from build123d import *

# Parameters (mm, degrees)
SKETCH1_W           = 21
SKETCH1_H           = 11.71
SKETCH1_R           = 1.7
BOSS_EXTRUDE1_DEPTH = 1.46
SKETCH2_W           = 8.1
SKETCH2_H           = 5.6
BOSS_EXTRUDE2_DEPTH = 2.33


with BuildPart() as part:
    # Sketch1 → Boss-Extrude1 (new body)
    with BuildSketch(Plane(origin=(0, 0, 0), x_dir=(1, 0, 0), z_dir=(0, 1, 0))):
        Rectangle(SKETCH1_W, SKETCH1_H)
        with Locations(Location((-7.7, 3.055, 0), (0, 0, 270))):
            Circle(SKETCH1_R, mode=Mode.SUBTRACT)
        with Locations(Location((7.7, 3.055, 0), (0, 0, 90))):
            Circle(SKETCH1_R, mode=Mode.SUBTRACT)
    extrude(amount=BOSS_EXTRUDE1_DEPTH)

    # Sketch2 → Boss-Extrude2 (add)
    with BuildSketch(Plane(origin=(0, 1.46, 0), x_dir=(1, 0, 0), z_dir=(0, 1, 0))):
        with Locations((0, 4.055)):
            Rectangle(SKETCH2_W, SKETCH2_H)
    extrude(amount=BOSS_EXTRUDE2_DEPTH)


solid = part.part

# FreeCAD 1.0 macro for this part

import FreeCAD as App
import Part
import Sketcher

V = App.Vector

doc = App.newDocument("Part")
body = doc.addObject("PartDesign::Body", "Body")

# Sketch on XZ plane
sketch1 = doc.addObject("Sketcher::SketchObject", "Sketch")
body.addObject(sketch1)
sketch1.AttachmentSupport = (doc.XZ_Plane, [""])
sketch1.MapMode = "FlatFace"
sketch1.addGeometry([
    Part.LineSegment(V(-10.5, -5.9, 0), V(-10.5, 5.9, 0)),  # 0
    Part.LineSegment(V(-10.5, 5.9, 0), V(10.5, 5.9, 0)),  # 1
    Part.LineSegment(V(10.5, 5.9, 0), V(10.5, -5.9, 0)),  # 2
    Part.LineSegment(V(10.5, -5.9, 0), V(-10.5, -5.9, 0)),  # 3
    Part.Circle(V(-7.7, -3.1, 0), V(0, 0, 1), 1.7),  # 4
    Part.Circle(V(7.7, -3.1, 0), V(0, 0, 1), 1.7),  # 5
], False)
sketch1.addConstraint([
    Sketcher.Constraint("Coincident", 0, 2, 1, 1),
    Sketcher.Constraint("Coincident", 1, 2, 2, 1),
    Sketcher.Constraint("Coincident", 2, 2, 3, 1),
    Sketcher.Constraint("Coincident", 3, 2, 0, 1),
    Sketcher.Constraint("Vertical", 0),
    Sketcher.Constraint("Horizontal", 1),
    Sketcher.Constraint("Vertical", 2),
    Sketcher.Constraint("Horizontal", 3),
    Sketcher.Constraint("Equal", 4, 5),
    Sketcher.Constraint("Symmetric", 0, 2, 2, 2, -1, 1),
    Sketcher.Constraint("Symmetric", 4, 3, 5, 3, -2),
    Sketcher.Constraint("Diameter", 4, 3.4),
    Sketcher.Constraint("DistanceX", 1, 1, 1, 2, 21.0),
    Sketcher.Constraint("DistanceY", 0, 1, 0, 2, 11.71),
    Sketcher.Constraint("DistanceX", 4, 3, -1, 1, 7.7),
    Sketcher.Constraint("DistanceY", 2, 2, 5, 3, 2.8),
])
pad1 = doc.addObject("PartDesign::Pad", "Pad")
body.addObject(pad1)
pad1.Profile = sketch1
pad1.Length = 1.46
pad1.Reversed = True

# Sketch on XZ plane
sketch2 = doc.addObject("Sketcher::SketchObject", "Sketch001")
body.addObject(sketch2)
sketch2.AttachmentSupport = (doc.XZ_Plane, [""])
sketch2.MapMode = "FlatFace"
sketch2.AttachmentOffset = App.Placement(V(0, 0, -1.46), App.Rotation())
sketch2.addGeometry([
    Part.LineSegment(V(-4, -7, 0), V(-4, -1, 0)),
    Part.LineSegment(V(-4, -1, 0), V(4, -1, 0)),
    Part.LineSegment(V(4, -1, 0), V(4, -7, 0)),
    Part.LineSegment(V(4, -7, 0), V(-4, -7, 0)),
], False)
sketch2.addConstraint([
    Sketcher.Constraint("Coincident", 0, 2, 1, 1),
    Sketcher.Constraint("Coincident", 1, 2, 2, 1),
    Sketcher.Constraint("Coincident", 2, 2, 3, 1),
    Sketcher.Constraint("Coincident", 3, 2, 0, 1),
    Sketcher.Constraint("Vertical", 0),
    Sketcher.Constraint("Horizontal", 1),
    Sketcher.Constraint("Vertical", 2),
    Sketcher.Constraint("Horizontal", 3),
    Sketcher.Constraint("DistanceX", 1, 1, 1, 2, 8.1),
    Sketcher.Constraint("DistanceY", 0, 1, 0, 2, 5.6),
    Sketcher.Constraint("DistanceX", 0, 2, -1, 1, 4.05),
    Sketcher.Constraint("DistanceY", 0, 2, -1, 1, 1.255),
])
pad2 = doc.addObject("PartDesign::Pad", "Pad001")
body.addObject(pad2)
pad2.Profile = sketch2
pad2.Length = 2.33
pad2.Reversed = True

doc.recompute()
